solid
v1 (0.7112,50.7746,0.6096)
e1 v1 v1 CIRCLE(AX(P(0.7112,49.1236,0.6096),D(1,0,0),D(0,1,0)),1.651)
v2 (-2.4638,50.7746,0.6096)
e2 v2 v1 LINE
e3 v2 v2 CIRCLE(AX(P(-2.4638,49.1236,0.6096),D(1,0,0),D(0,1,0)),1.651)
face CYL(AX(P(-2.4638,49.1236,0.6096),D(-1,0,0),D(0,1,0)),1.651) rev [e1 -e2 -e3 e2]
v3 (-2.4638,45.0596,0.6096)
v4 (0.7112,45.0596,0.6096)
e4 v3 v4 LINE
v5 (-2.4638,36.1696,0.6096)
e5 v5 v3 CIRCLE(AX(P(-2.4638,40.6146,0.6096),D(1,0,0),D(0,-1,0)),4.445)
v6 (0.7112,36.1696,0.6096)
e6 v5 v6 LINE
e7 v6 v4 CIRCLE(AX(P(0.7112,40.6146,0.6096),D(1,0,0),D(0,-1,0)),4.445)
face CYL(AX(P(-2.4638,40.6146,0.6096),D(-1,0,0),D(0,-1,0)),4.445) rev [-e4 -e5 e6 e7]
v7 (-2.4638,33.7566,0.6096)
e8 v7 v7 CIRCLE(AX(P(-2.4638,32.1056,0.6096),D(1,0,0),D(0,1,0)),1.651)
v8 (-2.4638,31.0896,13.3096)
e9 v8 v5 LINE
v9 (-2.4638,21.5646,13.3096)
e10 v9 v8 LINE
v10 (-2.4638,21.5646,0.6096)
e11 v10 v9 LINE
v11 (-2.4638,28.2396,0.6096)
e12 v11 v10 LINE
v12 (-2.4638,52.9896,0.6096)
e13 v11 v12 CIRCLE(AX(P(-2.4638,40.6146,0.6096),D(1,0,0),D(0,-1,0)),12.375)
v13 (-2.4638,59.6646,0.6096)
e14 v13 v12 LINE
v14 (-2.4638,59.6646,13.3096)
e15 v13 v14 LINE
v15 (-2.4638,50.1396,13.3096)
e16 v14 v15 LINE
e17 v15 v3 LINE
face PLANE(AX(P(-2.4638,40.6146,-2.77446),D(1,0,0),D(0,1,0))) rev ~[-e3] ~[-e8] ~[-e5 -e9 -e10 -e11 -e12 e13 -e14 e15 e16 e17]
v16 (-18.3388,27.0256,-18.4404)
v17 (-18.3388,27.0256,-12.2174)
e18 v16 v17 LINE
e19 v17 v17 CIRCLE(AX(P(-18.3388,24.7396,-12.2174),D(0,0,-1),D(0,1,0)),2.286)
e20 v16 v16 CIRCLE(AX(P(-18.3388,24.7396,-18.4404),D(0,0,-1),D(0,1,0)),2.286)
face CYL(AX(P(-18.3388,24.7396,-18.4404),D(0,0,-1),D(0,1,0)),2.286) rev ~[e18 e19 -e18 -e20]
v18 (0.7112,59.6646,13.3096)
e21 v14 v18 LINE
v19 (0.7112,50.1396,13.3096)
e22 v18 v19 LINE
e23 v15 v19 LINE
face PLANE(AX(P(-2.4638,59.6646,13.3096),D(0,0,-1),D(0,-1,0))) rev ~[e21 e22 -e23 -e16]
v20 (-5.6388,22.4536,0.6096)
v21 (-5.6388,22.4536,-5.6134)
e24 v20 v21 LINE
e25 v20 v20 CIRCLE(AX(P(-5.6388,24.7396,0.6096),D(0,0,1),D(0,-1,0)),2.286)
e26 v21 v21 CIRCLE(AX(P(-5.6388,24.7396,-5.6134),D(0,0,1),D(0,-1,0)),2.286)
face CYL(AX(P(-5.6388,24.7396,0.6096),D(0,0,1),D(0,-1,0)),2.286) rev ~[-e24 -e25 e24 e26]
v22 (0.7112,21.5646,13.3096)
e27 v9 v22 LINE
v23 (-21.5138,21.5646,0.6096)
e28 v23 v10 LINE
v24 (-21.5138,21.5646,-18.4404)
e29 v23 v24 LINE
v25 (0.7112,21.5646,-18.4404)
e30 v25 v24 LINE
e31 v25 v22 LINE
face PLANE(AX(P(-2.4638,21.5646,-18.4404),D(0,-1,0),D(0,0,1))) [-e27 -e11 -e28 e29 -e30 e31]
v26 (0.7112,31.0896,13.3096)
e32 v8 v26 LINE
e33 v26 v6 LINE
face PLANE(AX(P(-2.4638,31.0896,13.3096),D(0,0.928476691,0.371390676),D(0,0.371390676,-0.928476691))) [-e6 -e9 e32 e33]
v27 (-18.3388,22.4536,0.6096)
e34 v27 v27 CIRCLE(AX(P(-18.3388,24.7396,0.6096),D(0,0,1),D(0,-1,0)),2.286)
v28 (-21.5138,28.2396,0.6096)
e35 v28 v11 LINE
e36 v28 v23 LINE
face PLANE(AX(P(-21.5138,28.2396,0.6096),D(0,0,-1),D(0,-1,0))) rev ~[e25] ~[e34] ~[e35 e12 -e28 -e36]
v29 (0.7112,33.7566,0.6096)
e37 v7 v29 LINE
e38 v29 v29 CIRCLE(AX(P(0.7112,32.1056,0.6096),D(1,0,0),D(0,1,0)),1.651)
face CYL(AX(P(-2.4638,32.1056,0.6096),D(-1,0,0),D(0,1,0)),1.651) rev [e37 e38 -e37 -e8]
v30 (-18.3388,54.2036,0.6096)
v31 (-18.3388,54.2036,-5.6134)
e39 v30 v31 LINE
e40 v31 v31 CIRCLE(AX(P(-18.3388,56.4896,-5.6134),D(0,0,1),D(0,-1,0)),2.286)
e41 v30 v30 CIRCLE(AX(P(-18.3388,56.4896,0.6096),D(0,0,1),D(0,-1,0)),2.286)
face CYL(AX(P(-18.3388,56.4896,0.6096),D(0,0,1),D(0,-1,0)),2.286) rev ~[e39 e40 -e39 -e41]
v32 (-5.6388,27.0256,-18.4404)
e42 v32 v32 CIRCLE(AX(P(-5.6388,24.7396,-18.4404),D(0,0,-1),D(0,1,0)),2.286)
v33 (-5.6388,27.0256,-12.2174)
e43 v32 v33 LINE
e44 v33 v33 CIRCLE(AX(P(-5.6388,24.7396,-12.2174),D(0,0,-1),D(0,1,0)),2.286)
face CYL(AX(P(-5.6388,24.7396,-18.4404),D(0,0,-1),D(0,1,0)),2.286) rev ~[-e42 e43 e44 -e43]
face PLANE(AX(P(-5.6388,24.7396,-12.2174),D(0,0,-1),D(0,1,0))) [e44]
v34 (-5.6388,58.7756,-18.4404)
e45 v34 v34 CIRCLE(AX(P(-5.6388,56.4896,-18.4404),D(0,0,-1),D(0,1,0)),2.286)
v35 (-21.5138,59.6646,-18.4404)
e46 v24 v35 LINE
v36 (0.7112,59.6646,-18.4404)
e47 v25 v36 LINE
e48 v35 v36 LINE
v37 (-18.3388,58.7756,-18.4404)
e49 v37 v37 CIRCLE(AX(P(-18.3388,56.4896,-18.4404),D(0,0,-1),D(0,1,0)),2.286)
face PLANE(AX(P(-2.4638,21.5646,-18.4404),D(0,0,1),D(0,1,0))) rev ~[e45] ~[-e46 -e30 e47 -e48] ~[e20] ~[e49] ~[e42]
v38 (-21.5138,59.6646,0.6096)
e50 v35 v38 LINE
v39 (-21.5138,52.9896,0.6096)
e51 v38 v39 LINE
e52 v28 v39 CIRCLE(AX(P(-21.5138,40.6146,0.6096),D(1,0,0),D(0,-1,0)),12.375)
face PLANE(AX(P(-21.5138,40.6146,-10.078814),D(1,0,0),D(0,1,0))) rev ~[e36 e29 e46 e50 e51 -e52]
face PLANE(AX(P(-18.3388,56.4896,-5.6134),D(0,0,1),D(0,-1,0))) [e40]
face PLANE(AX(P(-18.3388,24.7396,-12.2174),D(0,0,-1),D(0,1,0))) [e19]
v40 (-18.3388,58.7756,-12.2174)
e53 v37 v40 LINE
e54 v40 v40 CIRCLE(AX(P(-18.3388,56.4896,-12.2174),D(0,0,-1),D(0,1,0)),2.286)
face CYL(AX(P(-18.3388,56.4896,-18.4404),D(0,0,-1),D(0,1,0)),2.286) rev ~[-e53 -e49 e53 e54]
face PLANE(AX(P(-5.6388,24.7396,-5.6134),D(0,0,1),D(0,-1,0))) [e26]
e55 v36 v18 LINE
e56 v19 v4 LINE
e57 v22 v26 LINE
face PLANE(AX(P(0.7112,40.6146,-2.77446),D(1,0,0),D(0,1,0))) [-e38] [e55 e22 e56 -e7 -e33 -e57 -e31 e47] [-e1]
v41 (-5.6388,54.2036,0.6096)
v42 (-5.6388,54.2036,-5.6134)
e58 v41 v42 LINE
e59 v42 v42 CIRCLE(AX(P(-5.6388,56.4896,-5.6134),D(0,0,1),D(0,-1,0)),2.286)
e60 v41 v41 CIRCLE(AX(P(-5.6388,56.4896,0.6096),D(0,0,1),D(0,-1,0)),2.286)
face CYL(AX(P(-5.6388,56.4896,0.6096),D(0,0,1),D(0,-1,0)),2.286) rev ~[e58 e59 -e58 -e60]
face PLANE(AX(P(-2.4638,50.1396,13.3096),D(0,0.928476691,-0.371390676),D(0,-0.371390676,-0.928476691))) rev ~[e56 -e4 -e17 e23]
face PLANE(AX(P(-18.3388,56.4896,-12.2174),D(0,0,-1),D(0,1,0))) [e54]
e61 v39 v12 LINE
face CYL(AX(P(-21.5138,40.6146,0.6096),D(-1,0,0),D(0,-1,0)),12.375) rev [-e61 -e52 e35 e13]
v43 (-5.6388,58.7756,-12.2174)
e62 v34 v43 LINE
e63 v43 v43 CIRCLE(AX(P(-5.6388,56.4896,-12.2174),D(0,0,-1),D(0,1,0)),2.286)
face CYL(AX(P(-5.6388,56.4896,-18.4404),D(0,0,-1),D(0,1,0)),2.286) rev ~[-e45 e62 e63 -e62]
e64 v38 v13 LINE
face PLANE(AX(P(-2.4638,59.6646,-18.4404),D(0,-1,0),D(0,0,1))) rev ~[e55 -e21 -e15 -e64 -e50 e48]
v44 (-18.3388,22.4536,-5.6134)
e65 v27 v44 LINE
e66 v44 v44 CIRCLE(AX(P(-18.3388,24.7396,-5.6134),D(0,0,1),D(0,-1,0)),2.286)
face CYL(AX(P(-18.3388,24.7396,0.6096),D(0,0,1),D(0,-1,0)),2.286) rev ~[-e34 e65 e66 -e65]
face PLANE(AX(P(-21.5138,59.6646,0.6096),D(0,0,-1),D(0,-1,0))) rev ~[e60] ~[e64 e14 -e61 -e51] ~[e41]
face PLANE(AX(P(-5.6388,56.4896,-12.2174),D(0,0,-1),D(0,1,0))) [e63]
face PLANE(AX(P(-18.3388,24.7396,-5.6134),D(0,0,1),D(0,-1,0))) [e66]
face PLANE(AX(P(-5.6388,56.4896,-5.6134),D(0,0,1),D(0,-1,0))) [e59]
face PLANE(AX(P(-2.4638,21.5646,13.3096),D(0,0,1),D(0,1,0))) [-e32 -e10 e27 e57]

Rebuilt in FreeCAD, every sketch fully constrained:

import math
import FreeCAD as App
import Part
import Sketcher
from FreeCAD import Vector
Q = App.Units.Quantity

doc = App.newDocument("Part")
body = doc.addObject("PartDesign::Body", "Body")

# Sketch on YZ plane
sketch1 = doc.addObject("Sketcher::SketchObject", "Sketch")
body.addObject(sketch1)
sketch1.AttachmentSupport = (doc.YZ_Plane, [""])
sketch1.MapMode = "FlatFace"
sketch1.addGeometry([
    Part.LineSegment(Vector(-19, 10, 0), Vector(-19, -10, 0)),  # 0
    Part.LineSegment(Vector(-19, -10, 0), Vector(19, -10, 0)),  # 1
    Part.LineSegment(Vector(19, -10, 0), Vector(19, 10, 0)),  # 2
    Part.LineSegment(Vector(19, 10, 0), Vector(12, 10, 0)),  # 3
    Part.ArcOfCircle(Part.Circle(Vector(0, 10, 0), Vector(0, 0, 1), 12), math.radians(180), math.radians(360)),  # 4
    Part.LineSegment(Vector(-12, 10, 0), Vector(-19, 10, 0)),  # 5
], False)
sketch1.addConstraint([
    Sketcher.Constraint("Coincident", 0, 2, 1, 1),
    Sketcher.Constraint("Coincident", 1, 2, 2, 1),
    Sketcher.Constraint("Coincident", 2, 2, 3, 1),
    Sketcher.Constraint("Coincident", 3, 2, 4, 2),
    Sketcher.Constraint("Coincident", 4, 1, 5, 1),
    Sketcher.Constraint("Coincident", 5, 2, 0, 1),
    Sketcher.Constraint("Vertical", 0),
    Sketcher.Constraint("Horizontal", 1),
    Sketcher.Constraint("Vertical", 2),
    Sketcher.Constraint("Horizontal", 3),
    Sketcher.Constraint("Horizontal", 5),
    Sketcher.Constraint("Symmetric", 0, 2, 2, 2, -1, 1),
    Sketcher.Constraint("Symmetric", 3, 2, 4, 1, -2),
    Sketcher.Constraint("Horizontal", 4, 3, 2, 2),
    Sketcher.Constraint("DistanceX", 1, 1, 1, 2, Q("1.5 in")),
    Sketcher.Constraint("DistanceY", 0, 2, 0, 1, Q("0.75 in")),
    Sketcher.Constraint("Radius", 4, Q("12.375 mm")),
])
pad1 = doc.addObject("PartDesign::Pad", "Pad")
body.addObject(pad1)
pad1.Profile = sketch1
pad1.Length = Q("0.75 in")

# Sketch on XY plane
sketch2 = doc.addObject("Sketcher::SketchObject", "Sketch001")
body.addObject(sketch2)
sketch2.AttachmentSupport = (doc.XY_Plane, [""])
sketch2.MapMode = "FlatFace"
sketch2.AttachmentOffset = App.Placement(Vector(0, 0, 0.375 * 25.4), App.Rotation())
sketch2.addGeometry([
    Part.Circle(Vector(15.9, -15.9, 0), Vector(0, 0, 1), 2.3),
    Part.Circle(Vector(3.2, -15.9, 0), Vector(0, 0, 1), 2.3),
    Part.Circle(Vector(15.9, 15.9, 0), Vector(0, 0, 1), 2.3),
    Part.Circle(Vector(3.2, 15.9, 0), Vector(0, 0, 1), 2.3),
], False)
sketch2.addConstraint([
    Sketcher.Constraint("Equal", 0, 1),
    Sketcher.Constraint("Equal", 1, 2),
    Sketcher.Constraint("Equal", 2, 3),
    Sketcher.Constraint("Symmetric", 0, 3, 2, 3, -1),
    Sketcher.Constraint("Symmetric", 1, 3, 3, 3, -1),
    Sketcher.Constraint("Horizontal", 0, 3, 1, 3),
    Sketcher.Constraint("Diameter", 0, Q("0.18 in")),
    Sketcher.Constraint("DistanceX", 1, 3, 0, 3, Q("0.5 in")),
    Sketcher.Constraint("DistanceY", 0, 3, 2, 3, Q("1.25 in")),
    Sketcher.Constraint("DistanceX", -1, 1, 0, 3, Q("0.625 in")),
])
pocket1 = doc.addObject("PartDesign::Pocket", "Pocket")
body.addObject(pocket1)
pocket1.Profile = sketch2
pocket1.Length = Q("0.245 in")

# Sketch on XY plane
sketch3 = doc.addObject("Sketcher::SketchObject", "Sketch002")
body.addObject(sketch3)
sketch3.AttachmentSupport = (doc.XY_Plane, [""])
sketch3.MapMode = "FlatFace"
sketch3.AttachmentOffset = App.Placement(Vector(0, 0, -0.375 * 25.4), App.Rotation())
sketch3.addGeometry([
    Part.Circle(Vector(15.9, 15.9, 0), Vector(0, 0, 1), 2.3),
    Part.Circle(Vector(3.2, 15.9, 0), Vector(0, 0, 1), 2.3),
    Part.Circle(Vector(15.9, -15.9, 0), Vector(0, 0, 1), 2.3),
    Part.Circle(Vector(3.2, -15.9, 0), Vector(0, 0, 1), 2.3),
], False)
sketch3.addConstraint([
    Sketcher.Constraint("Equal", 0, 1),
    Sketcher.Constraint("Equal", 1, 2),
    Sketcher.Constraint("Equal", 2, 3),
    Sketcher.Constraint("Symmetric", 0, 3, 2, 3, -1),
    Sketcher.Constraint("Symmetric", 1, 3, 3, 3, -1),
    Sketcher.Constraint("Horizontal", 0, 3, 1, 3),
    Sketcher.Constraint("Diameter", 0, Q("0.18 in")),
    Sketcher.Constraint("DistanceX", 1, 3, 0, 3, Q("0.5 in")),
    Sketcher.Constraint("DistanceY", 2, 3, 0, 3, Q("1.25 in")),
    Sketcher.Constraint("DistanceX", -1, 1, 0, 3, Q("0.625 in")),
])
pocket2 = doc.addObject("PartDesign::Pocket", "Pocket001")
body.addObject(pocket2)
pocket2.Profile = sketch3
pocket2.Length = Q("0.245 in")
pocket2.Reversed = True

# Sketch on YZ plane
sketch4 = doc.addObject("Sketcher::SketchObject", "Sketch003")
body.addObject(sketch4)
sketch4.AttachmentSupport = (doc.YZ_Plane, [""])
sketch4.MapMode = "FlatFace"
sketch4.AttachmentOffset = App.Placement(Vector(0, 0, 0.75 * 25.4), App.Rotation())
sketch4.addGeometry([
    Part.LineSegment(Vector(-19.1, -9.5, 0), Vector(19.1, -9.5, 0)),  # 0
    Part.LineSegment(Vector(19.1, -9.5, 0), Vector(19.1, 22.2, 0)),  # 1
    Part.LineSegment(Vector(19.1, 22.2, 0), Vector(9.5, 22.2, 0)),  # 2
    Part.LineSegment(Vector(9.5, 22.2, 0), Vector(4.4, 9.5, 0)),  # 3
    Part.ArcOfCircle(Part.Circle(Vector(0, 9.5, 0), Vector(0, 0, 1), 4.4), math.radians(180), math.radians(360)),  # 4
    Part.LineSegment(Vector(-4.4, 9.5, 0), Vector(-9.5, 22.2, 0)),  # 5
    Part.LineSegment(Vector(-9.5, 22.2, 0), Vector(-19.1, 22.2, 0)),  # 6
    Part.LineSegment(Vector(-19.1, 22.2, 0), Vector(-19.1, -9.5, 0)),  # 7
    Part.Circle(Vector(-8.5, 9.5, 0), Vector(0, 0, 1), 1.7),  # 8
    Part.Circle(Vector(8.5, 9.5, 0), Vector(0, 0, 1), 1.7),  # 9
], False)
sketch4.addConstraint([
    Sketcher.Constraint("Coincident", 0, 2, 1, 1),
    Sketcher.Constraint("Coincident", 1, 2, 2, 1),
    Sketcher.Constraint("Coincident", 2, 2, 3, 1),
    Sketcher.Constraint("Coincident", 3, 2, 4, 2),
    Sketcher.Constraint("Coincident", 4, 1, 5, 1),
    Sketcher.Constraint("Coincident", 5, 2, 6, 1),
    Sketcher.Constraint("Coincident", 6, 2, 7, 1),
    Sketcher.Constraint("Coincident", 7, 2, 0, 1),
    Sketcher.Constraint("Horizontal", 0),
    Sketcher.Constraint("Vertical", 1),
    Sketcher.Constraint("Horizontal", 2),
    Sketcher.Constraint("Horizontal", 6),
    Sketcher.Constraint("Vertical", 7),
    Sketcher.Constraint("Equal", 8, 9),
    Sketcher.Constraint("Symmetric", 8, 3, 9, 3, -2),
    Sketcher.Constraint("Symmetric", 3, 2, 4, 1, -2),
    Sketcher.Constraint("Symmetric", 2, 2, 5, 2, -2),
    Sketcher.Constraint("Horizontal", 4, 3, 8, 3),
    Sketcher.Constraint("Horizontal", 9, 3, 3, 2),
    Sketcher.Constraint("Equal", 2, 6),
    Sketcher.Constraint("Diameter", 8, Q("0.13 in")),
    Sketcher.Constraint("DistanceX", 0, 1, 0, 2, Q("1.5 in")),
    Sketcher.Constraint("Radius", 4, Q("0.175 in")),
    Sketcher.Constraint("DistanceY", 1, 1, 1, 2, Q("1.25 in")),
    Sketcher.Constraint("DistanceY", 9, 3, 1, 2, Q("0.5 in")),
    Sketcher.Constraint("DistanceX", 3, 2, 2, 2, Q("0.2 in")),
    Sketcher.Constraint("DistanceX", 8, 3, 9, 3, Q("0.67 in")),
    Sketcher.Constraint("DistanceY", -1, 1, 4, 3, Q("0.375 in")),
])
pad2 = doc.addObject("PartDesign::Pad", "Pad001")
body.addObject(pad2)
pad2.Profile = sketch4
pad2.Length = Q("0.125 in")
body2 = doc.addObject("PartDesign::Body", "Body001")
doc.recompute()

body.Placement = App.Placement(Vector(-21.5138, 40.6146, -8.9154), App.Rotation(Vector(0, 0, 1), 0))
boolean = doc.addObject("PartDesign::Boolean", "Boolean")
body2.addObject(boolean)
boolean.Type = "Fuse"
boolean.addObjects([body])

doc.recompute()
